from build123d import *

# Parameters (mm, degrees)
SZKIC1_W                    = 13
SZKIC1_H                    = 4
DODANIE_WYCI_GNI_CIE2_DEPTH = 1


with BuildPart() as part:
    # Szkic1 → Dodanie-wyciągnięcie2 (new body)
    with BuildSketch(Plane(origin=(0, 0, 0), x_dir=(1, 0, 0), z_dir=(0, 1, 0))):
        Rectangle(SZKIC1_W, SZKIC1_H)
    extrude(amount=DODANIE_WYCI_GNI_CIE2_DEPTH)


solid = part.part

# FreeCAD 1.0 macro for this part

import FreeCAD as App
import Part
import Sketcher

V = App.Vector
Q = App.Units.Quantity


def add_polygon(sketch, points):
    """Adds a closed chain of lines whose ends are joined by coincident constraints."""
    first, n = sketch.GeometryCount, len(points)
    for a, b in zip(points, points[1:] + points[:1]):
        sketch.addGeometry(Part.LineSegment(App.Vector(*a, 0), App.Vector(*b, 0)), False)
    for i in range(n):
        sketch.addConstraint(Sketcher.Constraint("Coincident", first + i, 2, first + (i + 1) % n, 1))

doc = App.newDocument("Part")
body = doc.addObject("PartDesign::Body", "Body")

# Sketch on XZ plane
sketch1 = body.newObject("Sketcher::SketchObject", "Sketch")
sketch1.AttachmentSupport = (doc.getObject("XZ_Plane"), [""])
sketch1.MapMode = "FlatFace"
add_polygon(sketch1, [(-6.5, -2), (-6.5, 2), (6.5, 2), (6.5, -2)])  # lines 0-3
sketch1.addConstraint(Sketcher.Constraint("Vertical", 0))
sketch1.addConstraint(Sketcher.Constraint("Horizontal", 1))
sketch1.addConstraint(Sketcher.Constraint("Vertical", 2))
sketch1.addConstraint(Sketcher.Constraint("Horizontal", 3))
sketch1.addConstraint(Sketcher.Constraint("Symmetric", 0, 2, 2, 2, -1, 1))
sketch1.addConstraint(Sketcher.Constraint("DistanceX", 1, 1, 1, 2, Q("13 mm")))
sketch1.addConstraint(Sketcher.Constraint("DistanceY", 0, 1, 0, 2, Q("4 mm")))
pad1 = body.newObject("PartDesign::Pad", "Pad")
pad1.Profile = sketch1
pad1.Length = 1
pad1.Reversed = True

doc.recompute()
